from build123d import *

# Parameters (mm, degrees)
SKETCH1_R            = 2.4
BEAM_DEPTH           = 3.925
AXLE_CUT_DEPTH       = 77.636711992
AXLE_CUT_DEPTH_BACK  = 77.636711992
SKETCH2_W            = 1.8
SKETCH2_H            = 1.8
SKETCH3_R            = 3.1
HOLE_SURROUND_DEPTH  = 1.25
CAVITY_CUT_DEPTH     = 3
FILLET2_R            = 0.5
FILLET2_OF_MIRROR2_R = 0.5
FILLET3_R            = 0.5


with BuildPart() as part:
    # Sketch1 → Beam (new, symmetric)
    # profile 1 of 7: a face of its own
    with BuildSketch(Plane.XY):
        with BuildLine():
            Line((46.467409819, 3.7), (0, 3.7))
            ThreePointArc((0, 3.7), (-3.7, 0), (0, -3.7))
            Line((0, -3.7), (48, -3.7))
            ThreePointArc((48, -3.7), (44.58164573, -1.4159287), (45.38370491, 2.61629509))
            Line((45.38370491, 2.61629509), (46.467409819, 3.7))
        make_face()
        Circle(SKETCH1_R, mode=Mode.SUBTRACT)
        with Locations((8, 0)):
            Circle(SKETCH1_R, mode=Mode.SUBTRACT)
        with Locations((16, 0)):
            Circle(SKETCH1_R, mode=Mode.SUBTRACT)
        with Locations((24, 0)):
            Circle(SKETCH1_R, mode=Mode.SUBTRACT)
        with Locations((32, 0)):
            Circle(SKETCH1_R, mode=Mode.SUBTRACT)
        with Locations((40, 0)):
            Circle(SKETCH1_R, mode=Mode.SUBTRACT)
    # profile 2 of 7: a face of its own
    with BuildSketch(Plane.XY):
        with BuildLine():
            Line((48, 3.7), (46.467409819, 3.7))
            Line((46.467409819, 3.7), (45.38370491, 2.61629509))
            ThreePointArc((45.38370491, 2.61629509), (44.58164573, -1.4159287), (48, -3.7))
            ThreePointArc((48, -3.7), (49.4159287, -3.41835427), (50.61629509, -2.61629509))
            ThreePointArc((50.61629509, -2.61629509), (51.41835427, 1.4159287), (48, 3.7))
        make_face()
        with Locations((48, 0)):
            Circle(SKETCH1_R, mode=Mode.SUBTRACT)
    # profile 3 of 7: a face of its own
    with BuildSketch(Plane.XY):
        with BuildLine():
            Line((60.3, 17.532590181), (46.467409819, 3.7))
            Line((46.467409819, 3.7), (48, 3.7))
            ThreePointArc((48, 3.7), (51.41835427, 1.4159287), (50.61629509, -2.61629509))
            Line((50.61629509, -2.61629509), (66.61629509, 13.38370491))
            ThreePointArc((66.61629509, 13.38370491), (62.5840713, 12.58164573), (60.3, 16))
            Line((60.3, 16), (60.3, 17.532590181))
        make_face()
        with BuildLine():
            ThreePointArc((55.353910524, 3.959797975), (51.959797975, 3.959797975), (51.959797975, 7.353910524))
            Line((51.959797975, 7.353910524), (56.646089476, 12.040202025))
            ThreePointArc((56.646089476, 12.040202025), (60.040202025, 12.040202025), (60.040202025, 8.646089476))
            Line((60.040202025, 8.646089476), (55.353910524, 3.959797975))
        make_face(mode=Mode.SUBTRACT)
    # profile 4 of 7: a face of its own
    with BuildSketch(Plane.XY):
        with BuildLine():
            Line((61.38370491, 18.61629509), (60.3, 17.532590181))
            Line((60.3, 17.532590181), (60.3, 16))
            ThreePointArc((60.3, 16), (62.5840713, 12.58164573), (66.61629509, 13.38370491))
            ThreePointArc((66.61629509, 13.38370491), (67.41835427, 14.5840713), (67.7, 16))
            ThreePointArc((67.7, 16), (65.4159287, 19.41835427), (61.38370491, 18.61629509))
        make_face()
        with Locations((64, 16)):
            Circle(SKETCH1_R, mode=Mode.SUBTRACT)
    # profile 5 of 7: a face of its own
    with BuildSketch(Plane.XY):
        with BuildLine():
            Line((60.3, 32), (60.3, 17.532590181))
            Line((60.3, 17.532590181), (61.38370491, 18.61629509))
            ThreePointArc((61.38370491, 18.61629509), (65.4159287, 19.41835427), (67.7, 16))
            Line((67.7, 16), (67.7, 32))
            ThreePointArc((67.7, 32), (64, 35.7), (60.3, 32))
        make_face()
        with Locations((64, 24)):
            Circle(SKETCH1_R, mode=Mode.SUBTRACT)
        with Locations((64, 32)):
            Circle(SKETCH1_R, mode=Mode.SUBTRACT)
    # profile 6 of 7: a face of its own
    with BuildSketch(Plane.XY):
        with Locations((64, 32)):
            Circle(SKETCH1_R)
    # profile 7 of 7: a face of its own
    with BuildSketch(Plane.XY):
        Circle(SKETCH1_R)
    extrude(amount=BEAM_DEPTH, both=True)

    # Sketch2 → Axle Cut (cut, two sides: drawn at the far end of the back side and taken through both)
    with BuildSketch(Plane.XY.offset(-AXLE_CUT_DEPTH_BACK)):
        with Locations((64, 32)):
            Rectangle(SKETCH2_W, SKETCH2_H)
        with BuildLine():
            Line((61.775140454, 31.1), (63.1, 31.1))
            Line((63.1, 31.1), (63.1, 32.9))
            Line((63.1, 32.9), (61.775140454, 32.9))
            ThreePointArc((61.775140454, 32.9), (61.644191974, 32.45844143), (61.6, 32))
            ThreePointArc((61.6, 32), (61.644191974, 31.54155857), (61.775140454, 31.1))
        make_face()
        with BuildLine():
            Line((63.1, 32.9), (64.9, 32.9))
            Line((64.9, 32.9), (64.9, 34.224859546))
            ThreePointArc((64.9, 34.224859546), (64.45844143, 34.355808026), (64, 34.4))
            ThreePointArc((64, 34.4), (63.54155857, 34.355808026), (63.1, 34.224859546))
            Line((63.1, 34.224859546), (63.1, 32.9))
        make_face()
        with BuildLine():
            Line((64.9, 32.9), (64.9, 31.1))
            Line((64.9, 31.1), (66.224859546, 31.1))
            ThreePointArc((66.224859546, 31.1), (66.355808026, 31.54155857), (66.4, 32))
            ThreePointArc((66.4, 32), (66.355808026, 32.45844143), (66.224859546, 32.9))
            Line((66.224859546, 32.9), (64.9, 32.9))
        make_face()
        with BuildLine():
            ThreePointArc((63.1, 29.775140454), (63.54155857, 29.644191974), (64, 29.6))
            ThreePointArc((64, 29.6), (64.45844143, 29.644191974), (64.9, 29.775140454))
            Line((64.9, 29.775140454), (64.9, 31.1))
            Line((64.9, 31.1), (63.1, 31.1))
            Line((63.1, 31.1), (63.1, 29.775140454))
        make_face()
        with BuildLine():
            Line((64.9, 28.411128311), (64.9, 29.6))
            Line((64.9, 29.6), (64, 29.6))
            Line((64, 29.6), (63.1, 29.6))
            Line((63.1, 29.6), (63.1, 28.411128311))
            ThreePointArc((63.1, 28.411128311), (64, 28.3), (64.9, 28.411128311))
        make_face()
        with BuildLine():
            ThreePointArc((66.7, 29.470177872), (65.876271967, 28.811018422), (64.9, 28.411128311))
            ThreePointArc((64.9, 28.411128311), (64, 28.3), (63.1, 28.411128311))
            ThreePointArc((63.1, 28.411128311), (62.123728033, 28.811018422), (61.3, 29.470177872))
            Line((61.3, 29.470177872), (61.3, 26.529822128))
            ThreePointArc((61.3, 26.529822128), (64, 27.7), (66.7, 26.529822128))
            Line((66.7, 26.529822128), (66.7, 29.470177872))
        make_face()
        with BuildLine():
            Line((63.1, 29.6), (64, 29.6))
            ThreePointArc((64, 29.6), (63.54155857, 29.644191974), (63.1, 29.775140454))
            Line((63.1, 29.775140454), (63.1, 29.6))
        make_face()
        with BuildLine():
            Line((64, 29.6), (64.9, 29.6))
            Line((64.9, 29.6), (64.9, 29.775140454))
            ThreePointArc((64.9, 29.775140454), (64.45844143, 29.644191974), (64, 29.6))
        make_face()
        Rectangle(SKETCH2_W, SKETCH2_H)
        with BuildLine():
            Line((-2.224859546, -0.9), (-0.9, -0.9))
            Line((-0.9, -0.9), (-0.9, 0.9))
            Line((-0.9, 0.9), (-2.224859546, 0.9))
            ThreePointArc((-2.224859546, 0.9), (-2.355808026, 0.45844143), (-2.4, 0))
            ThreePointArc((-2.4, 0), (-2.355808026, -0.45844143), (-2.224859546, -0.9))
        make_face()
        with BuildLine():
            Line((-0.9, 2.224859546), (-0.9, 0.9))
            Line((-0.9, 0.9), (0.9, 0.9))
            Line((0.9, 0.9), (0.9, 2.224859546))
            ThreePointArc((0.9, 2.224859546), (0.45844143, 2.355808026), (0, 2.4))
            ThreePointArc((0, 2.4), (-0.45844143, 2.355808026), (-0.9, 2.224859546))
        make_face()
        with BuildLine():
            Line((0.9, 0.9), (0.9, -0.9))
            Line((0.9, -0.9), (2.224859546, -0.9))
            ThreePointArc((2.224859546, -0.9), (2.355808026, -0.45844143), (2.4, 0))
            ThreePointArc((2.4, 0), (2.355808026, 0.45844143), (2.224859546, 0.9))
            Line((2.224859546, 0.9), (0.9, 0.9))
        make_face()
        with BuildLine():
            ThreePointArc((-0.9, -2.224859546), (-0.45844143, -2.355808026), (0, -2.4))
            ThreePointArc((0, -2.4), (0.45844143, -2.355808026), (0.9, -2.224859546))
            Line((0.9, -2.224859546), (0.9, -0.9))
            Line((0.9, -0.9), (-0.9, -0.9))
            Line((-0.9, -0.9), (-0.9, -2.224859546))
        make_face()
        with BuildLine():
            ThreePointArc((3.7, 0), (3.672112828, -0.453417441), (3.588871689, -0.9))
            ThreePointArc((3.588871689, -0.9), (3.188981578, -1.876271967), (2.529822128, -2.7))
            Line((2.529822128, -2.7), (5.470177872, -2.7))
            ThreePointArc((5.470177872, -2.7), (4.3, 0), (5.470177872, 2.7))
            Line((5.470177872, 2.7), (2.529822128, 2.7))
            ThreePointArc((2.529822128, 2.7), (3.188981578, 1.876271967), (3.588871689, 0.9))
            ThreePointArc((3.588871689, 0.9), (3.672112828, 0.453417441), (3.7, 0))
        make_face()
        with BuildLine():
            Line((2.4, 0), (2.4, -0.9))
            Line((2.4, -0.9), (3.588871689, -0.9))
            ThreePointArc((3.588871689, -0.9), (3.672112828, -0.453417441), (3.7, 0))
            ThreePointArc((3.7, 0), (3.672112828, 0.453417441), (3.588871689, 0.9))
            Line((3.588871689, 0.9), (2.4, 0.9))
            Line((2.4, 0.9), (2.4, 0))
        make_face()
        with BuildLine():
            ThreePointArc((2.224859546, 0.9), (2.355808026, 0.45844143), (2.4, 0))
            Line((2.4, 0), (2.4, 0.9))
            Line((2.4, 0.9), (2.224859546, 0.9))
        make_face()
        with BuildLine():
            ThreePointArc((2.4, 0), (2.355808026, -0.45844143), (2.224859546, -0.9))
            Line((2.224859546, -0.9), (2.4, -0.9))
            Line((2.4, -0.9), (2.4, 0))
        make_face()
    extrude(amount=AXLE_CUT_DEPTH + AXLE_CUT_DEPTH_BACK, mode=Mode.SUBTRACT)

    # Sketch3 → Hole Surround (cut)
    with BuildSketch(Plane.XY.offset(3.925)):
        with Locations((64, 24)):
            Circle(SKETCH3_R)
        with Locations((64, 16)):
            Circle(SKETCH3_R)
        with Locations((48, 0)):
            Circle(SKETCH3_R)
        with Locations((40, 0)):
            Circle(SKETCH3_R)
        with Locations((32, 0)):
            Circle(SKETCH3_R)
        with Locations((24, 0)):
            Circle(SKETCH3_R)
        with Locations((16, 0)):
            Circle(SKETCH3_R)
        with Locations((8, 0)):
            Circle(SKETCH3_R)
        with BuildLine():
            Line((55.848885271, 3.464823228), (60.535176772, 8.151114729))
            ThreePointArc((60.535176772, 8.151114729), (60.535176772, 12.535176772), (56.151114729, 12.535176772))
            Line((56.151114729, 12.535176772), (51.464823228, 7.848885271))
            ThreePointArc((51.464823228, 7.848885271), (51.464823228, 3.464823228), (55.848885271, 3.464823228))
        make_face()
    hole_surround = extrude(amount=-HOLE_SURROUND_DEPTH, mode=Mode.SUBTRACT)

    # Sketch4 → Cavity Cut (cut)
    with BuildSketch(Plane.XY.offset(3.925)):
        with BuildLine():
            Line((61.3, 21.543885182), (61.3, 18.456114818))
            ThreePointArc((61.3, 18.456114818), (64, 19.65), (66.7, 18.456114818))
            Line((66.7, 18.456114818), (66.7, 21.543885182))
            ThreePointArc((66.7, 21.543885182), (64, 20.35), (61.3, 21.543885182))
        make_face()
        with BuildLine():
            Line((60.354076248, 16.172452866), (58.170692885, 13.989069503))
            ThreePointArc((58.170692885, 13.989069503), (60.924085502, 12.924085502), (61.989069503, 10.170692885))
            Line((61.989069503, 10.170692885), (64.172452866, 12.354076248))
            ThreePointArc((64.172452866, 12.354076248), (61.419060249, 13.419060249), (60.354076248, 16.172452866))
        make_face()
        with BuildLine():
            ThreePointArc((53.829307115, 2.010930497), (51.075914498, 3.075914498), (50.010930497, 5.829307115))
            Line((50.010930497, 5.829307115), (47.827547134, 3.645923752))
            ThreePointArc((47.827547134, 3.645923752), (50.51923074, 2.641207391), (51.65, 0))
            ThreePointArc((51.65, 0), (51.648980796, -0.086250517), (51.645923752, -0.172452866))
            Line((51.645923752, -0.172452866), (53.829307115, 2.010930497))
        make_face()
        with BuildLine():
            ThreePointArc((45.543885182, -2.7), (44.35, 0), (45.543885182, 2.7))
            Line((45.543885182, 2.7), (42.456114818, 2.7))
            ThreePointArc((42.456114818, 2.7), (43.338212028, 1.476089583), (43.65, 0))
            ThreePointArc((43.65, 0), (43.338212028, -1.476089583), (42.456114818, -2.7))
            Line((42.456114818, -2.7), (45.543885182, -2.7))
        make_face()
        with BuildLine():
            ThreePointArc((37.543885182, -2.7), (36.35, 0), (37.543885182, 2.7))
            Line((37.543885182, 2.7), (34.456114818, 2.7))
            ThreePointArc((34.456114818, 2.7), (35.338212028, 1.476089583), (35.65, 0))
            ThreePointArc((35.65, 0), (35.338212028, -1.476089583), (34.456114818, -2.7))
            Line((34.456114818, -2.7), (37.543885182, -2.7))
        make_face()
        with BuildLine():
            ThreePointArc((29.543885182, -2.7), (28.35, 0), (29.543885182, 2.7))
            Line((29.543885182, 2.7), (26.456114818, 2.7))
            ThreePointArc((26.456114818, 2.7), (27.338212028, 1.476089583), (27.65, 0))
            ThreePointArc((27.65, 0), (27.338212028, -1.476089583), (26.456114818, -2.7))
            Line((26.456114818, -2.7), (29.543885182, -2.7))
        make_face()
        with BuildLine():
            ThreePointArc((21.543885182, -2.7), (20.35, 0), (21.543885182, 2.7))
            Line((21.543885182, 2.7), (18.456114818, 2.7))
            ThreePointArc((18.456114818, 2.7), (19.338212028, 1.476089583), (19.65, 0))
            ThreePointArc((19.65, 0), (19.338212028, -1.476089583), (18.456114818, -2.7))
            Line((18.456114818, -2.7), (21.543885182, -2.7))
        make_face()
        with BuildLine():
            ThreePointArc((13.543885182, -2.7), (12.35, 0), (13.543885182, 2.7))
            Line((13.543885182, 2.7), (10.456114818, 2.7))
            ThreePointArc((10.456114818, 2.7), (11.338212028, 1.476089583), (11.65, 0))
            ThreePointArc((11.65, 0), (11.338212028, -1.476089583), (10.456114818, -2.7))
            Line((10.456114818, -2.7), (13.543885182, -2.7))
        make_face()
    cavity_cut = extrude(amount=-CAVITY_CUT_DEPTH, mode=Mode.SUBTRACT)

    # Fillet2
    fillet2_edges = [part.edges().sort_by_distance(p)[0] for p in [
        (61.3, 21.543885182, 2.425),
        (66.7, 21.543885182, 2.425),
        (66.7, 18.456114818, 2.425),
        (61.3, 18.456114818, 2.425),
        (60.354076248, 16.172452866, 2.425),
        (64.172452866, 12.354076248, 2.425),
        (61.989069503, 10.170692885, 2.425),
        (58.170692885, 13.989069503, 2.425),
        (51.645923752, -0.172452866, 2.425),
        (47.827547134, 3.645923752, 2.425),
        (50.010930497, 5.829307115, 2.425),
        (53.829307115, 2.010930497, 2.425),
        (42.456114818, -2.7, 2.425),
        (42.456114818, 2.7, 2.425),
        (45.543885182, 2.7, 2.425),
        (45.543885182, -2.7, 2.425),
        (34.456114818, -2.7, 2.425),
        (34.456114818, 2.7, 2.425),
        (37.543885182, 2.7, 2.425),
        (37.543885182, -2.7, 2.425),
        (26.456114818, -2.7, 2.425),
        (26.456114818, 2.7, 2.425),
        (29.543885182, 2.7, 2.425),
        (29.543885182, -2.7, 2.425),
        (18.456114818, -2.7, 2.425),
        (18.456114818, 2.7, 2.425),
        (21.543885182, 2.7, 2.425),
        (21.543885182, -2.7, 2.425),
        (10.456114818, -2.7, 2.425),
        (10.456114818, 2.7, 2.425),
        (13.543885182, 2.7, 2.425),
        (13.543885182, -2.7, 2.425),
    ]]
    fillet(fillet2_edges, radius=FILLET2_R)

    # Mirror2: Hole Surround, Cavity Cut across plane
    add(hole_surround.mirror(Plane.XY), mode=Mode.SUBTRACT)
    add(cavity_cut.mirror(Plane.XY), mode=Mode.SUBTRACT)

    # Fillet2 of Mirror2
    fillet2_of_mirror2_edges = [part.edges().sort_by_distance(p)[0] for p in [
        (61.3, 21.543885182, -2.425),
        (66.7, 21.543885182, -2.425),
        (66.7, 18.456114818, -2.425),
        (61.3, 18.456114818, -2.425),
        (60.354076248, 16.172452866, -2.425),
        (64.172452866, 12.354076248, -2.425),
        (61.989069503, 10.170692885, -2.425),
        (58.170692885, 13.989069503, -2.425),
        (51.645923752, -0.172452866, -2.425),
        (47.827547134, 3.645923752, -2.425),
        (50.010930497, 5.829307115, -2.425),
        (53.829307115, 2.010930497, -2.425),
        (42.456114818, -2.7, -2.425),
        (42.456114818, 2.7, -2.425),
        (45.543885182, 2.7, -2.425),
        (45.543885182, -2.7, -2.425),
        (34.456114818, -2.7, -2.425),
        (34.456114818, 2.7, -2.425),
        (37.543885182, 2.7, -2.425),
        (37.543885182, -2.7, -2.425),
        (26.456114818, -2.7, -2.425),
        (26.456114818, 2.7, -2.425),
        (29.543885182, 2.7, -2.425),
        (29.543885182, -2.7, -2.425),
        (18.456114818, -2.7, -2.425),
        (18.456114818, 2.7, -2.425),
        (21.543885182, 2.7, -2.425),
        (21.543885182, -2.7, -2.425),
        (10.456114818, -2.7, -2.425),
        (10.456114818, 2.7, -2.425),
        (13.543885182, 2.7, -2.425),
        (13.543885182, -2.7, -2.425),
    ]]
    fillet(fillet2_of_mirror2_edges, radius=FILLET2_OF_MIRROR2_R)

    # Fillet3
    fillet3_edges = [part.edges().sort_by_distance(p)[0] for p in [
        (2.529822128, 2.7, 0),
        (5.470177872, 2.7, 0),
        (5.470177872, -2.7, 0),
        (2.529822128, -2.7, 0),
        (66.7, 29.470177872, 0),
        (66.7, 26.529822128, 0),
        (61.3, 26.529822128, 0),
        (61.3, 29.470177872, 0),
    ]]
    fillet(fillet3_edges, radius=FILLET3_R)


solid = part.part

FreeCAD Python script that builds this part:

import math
import FreeCAD as App
import Part
import Sketcher
Q = App.Units.Quantity


def edges_at(feature, points):
    """Names of the edges that pass closest to the given points."""
    edges = feature.Shape.Edges
    near = lambda p: min(range(len(edges)), key=lambda i: edges[i].distToShape(Part.Vertex(*p))[0])
    return sorted({f"Edge{near(p) + 1}" for p in points})

doc = App.newDocument("Part")
body = doc.addObject("PartDesign::Body", "Body")

sketch1 = body.newObject("Sketcher::SketchObject", "Sketch")
sketch1.AttachmentSupport = (doc.getObject("XY_Plane"), [""])
sketch1.MapMode = "FlatFace"
sketch1.addGeometry(Part.LineSegment(App.Vector(46.5, 3.7, 0), App.Vector(0, 3.7, 0)), False)
sketch1.addGeometry(Part.ArcOfCircle(Part.Circle(App.Vector(0, 0, 0), App.Vector(0, 0, 1), 3.7), math.radians(90), math.radians(270)), False)
sketch1.addGeometry(Part.LineSegment(App.Vector(0, -3.7, 0), App.Vector(48, -3.7, 0)), False)
sketch1.addGeometry(Part.ArcOfCircle(Part.Circle(App.Vector(48, 0, 0), App.Vector(0, 0, 1), 3.7), math.radians(-90), math.radians(-45)), False)
sketch1.addGeometry(Part.LineSegment(App.Vector(50.6, -2.6, 0), App.Vector(66.6, 13.4, 0)), False)
sketch1.addGeometry(Part.ArcOfCircle(Part.Circle(App.Vector(64, 16, 0), App.Vector(0, 0, 1), 3.7), math.radians(-45), math.radians(0)), False)
sketch1.addGeometry(Part.LineSegment(App.Vector(67.7, 16, 0), App.Vector(67.7, 32, 0)), False)
sketch1.addGeometry(Part.ArcOfCircle(Part.Circle(App.Vector(64, 32, 0), App.Vector(0, 0, 1), 3.7), math.radians(0), math.radians(180)), False)
sketch1.addGeometry(Part.LineSegment(App.Vector(60.3, 32, 0), App.Vector(60.3, 17.5, 0)), False)
sketch1.addGeometry(Part.LineSegment(App.Vector(60.3, 17.5, 0), App.Vector(46.5, 3.7, 0)), False)
sketch1.addGeometry(Part.Circle(App.Vector(8, 0, 0), App.Vector(0, 0, 1), 2.4), False)
sketch1.addGeometry(Part.Circle(App.Vector(16, 0, 0), App.Vector(0, 0, 1), 2.4), False)
sketch1.addGeometry(Part.Circle(App.Vector(24, 0, 0), App.Vector(0, 0, 1), 2.4), False)
sketch1.addGeometry(Part.Circle(App.Vector(32, 0, 0), App.Vector(0, 0, 1), 2.4), False)
sketch1.addGeometry(Part.Circle(App.Vector(40, 0, 0), App.Vector(0, 0, 1), 2.4), False)
sketch1.addGeometry(Part.Circle(App.Vector(48, 0, 0), App.Vector(0, 0, 1), 2.4), False)
sketch1.addGeometry(Part.ArcOfCircle(Part.Circle(App.Vector(53.7, 5.7, 0), App.Vector(0, 0, 1), 2.4), math.radians(135), math.radians(315)), False)
sketch1.addGeometry(Part.LineSegment(App.Vector(52, 7.4, 0), App.Vector(56.6, 12, 0)), False)
sketch1.addGeometry(Part.ArcOfCircle(Part.Circle(App.Vector(58.3, 10.3, 0), App.Vector(0, 0, 1), 2.4), math.radians(-45), math.radians(135)), False)
sketch1.addGeometry(Part.LineSegment(App.Vector(60, 8.6, 0), App.Vector(55.4, 4, 0)), False)
sketch1.addGeometry(Part.Circle(App.Vector(64, 16, 0), App.Vector(0, 0, 1), 2.4), False)
sketch1.addGeometry(Part.Circle(App.Vector(64, 24, 0), App.Vector(0, 0, 1), 2.4), False)
sketch1.addConstraint(Sketcher.Constraint("Tangent", 0, 2, 1, 1))
sketch1.addConstraint(Sketcher.Constraint("Tangent", 1, 2, 2, 1))
sketch1.addConstraint(Sketcher.Constraint("Tangent", 2, 2, 3, 1))
sketch1.addConstraint(Sketcher.Constraint("Tangent", 3, 2, 4, 1))
sketch1.addConstraint(Sketcher.Constraint("Tangent", 4, 2, 5, 1))
sketch1.addConstraint(Sketcher.Constraint("Tangent", 5, 2, 6, 1))
sketch1.addConstraint(Sketcher.Constraint("Tangent", 6, 2, 7, 1))
sketch1.addConstraint(Sketcher.Constraint("Tangent", 7, 2, 8, 1))
sketch1.addConstraint(Sketcher.Constraint("Coincident", 8, 2, 9, 1))
sketch1.addConstraint(Sketcher.Constraint("Coincident", 9, 2, 0, 1))
sketch1.addConstraint(Sketcher.Constraint("Tangent", 16, 1, 17, 1))
sketch1.addConstraint(Sketcher.Constraint("Tangent", 17, 2, 18, 2))
sketch1.addConstraint(Sketcher.Constraint("Tangent", 18, 1, 19, 1))
sketch1.addConstraint(Sketcher.Constraint("Tangent", 19, 2, 16, 2))
sketch1.addConstraint(Sketcher.Constraint("Horizontal", 0))
sketch1.addConstraint(Sketcher.Constraint("Horizontal", 2))
sketch1.addConstraint(Sketcher.Constraint("Vertical", 6))
sketch1.addConstraint(Sketcher.Constraint("Vertical", 8))
sketch1.addConstraint(Sketcher.Constraint("Coincident", 1, 3, -1, 1))
sketch1.addConstraint(Sketcher.Constraint("Coincident", 15, 3, 3, 3))
sketch1.addConstraint(Sketcher.Constraint("Coincident", 20, 3, 5, 3))
sketch1.addConstraint(Sketcher.Constraint("Equal", 1, 3))
sketch1.addConstraint(Sketcher.Constraint("Equal", 3, 5))
sketch1.addConstraint(Sketcher.Constraint("Equal", 5, 7))
sketch1.addConstraint(Sketcher.Constraint("Equal", 10, 11))
sketch1.addConstraint(Sketcher.Constraint("Equal", 11, 12))
sketch1.addConstraint(Sketcher.Constraint("Equal", 12, 13))
sketch1.addConstraint(Sketcher.Constraint("Equal", 13, 14))
sketch1.addConstraint(Sketcher.Constraint("Equal", 14, 15))
sketch1.addConstraint(Sketcher.Constraint("Equal", 15, 16))
sketch1.addConstraint(Sketcher.Constraint("Equal", 16, 18))
sketch1.addConstraint(Sketcher.Constraint("Equal", 18, 20))
sketch1.addConstraint(Sketcher.Constraint("Equal", 20, 21))
sketch1.addConstraint(Sketcher.Constraint("PointOnObject", 10, 3, -1))
sketch1.addConstraint(Sketcher.Constraint("PointOnObject", 11, 3, -1))
sketch1.addConstraint(Sketcher.Constraint("PointOnObject", 12, 3, -1))
sketch1.addConstraint(Sketcher.Constraint("PointOnObject", 13, 3, -1))
sketch1.addConstraint(Sketcher.Constraint("PointOnObject", 14, 3, -1))
sketch1.addConstraint(Sketcher.Constraint("Parallel", 4, 9))
sketch1.addConstraint(Sketcher.Constraint("Parallel", 9, 17))
sketch1.addConstraint(Sketcher.Constraint("Vertical", 20, 3, 21, 3))
sketch1.addConstraint(Sketcher.Constraint("Diameter", 10, Q("4.8 mm")))
sketch1.addConstraint(Sketcher.Constraint("Radius", 1, Q("3.7 mm")))
sketch1.addConstraint(Sketcher.Constraint("DistanceX", 2, 1, 2, 2, Q("48 mm")))
sketch1.addConstraint(Sketcher.Constraint("DistanceY", 6, 1, 6, 2, Q("16 mm")))
sketch1.addConstraint(Sketcher.Constraint("Angle", 4, Q("45 deg")))
sketch1.addConstraint(Sketcher.Constraint("DistanceX", -1, 1, 5, 3, Q("64 mm")))
sketch1.addConstraint(Sketcher.Constraint("DistanceX", -1, 1, 10, 3, Q("8 mm")))
sketch1.addConstraint(Sketcher.Constraint("DistanceX", -1, 1, 11, 3, Q("16 mm")))
sketch1.addConstraint(Sketcher.Constraint("DistanceX", -1, 1, 12, 3, Q("24 mm")))
sketch1.addConstraint(Sketcher.Constraint("DistanceX", -1, 1, 13, 3, Q("32 mm")))
sketch1.addConstraint(Sketcher.Constraint("DistanceX", -1, 1, 14, 3, Q("40 mm")))
sketch1.addConstraint(Sketcher.Constraint("DistanceY", -1, 1, 21, 3, Q("24 mm")))
sketch1.addConstraint(Sketcher.Constraint("DistanceX", 0, 2, 0, 1, Q("46.46741 mm")))
sketch1.addConstraint(Sketcher.Constraint("DistanceY", -1, 1, 16, 1, Q("7.353911 mm")))
sketch1.addConstraint(Sketcher.Constraint("DistanceX", -1, 1, 17, 2, Q("56.646089 mm")))
sketch1.addConstraint(Sketcher.Constraint("DistanceY", -1, 1, 18, 1, Q("8.646089 mm")))
pad1 = body.newObject("PartDesign::Pad", "Pad")
pad1.Profile = sketch1
pad1.Length = 7.85
pad1.Midplane = True

sketch2 = body.newObject("Sketcher::SketchObject", "Sketch001")
sketch2.AttachmentSupport = (doc.getObject("XY_Plane"), [""])
sketch2.MapMode = "FlatFace"
sketch2.addGeometry(Part.LineSegment(App.Vector(64.9, 32.9, 0), App.Vector(64.9, 34.2, 0)), False)
sketch2.addGeometry(Part.ArcOfCircle(Part.Circle(App.Vector(64, 32, 0), App.Vector(0, 0, 1), 2.4), math.radians(68), math.radians(90)), False)
sketch2.addGeometry(Part.ArcOfCircle(Part.Circle(App.Vector(64, 32, 0), App.Vector(0, 0, 1), 2.4), math.radians(90), math.radians(112)), False)
sketch2.addGeometry(Part.LineSegment(App.Vector(63.1, 34.2, 0), App.Vector(63.1, 32.9, 0)), False)
sketch2.addGeometry(Part.LineSegment(App.Vector(63.1, 32.9, 0), App.Vector(61.8, 32.9, 0)), False)
sketch2.addGeometry(Part.ArcOfCircle(Part.Circle(App.Vector(64, 32, 0), App.Vector(0, 0, 1), 2.4), math.radians(158), math.radians(180)), False)
sketch2.addGeometry(Part.ArcOfCircle(Part.Circle(App.Vector(64, 32, 0), App.Vector(0, 0, 1), 2.4), math.radians(180), math.radians(202)), False)
sketch2.addGeometry(Part.LineSegment(App.Vector(61.8, 31.1, 0), App.Vector(63.1, 31.1, 0)), False)
sketch2.addGeometry(Part.LineSegment(App.Vector(63.1, 31.1, 0), App.Vector(63.1, 28.4, 0)), False)
sketch2.addGeometry(Part.ArcOfCircle(Part.Circle(App.Vector(64, 32, 0), App.Vector(0, 0, 1), 3.7), math.radians(-137), math.radians(-104)), False)
sketch2.addGeometry(Part.LineSegment(App.Vector(61.3, 29.5, 0), App.Vector(61.3, 26.5, 0)), False)
sketch2.addGeometry(Part.ArcOfCircle(Part.Circle(App.Vector(64, 24, 0), App.Vector(0, 0, 1), 3.7), math.radians(43), math.radians(137)), False)
sketch2.addGeometry(Part.LineSegment(App.Vector(66.7, 26.5, 0), App.Vector(66.7, 29.5, 0)), False)
sketch2.addGeometry(Part.ArcOfCircle(Part.Circle(App.Vector(64, 32, 0), App.Vector(0, 0, 1), 3.7), math.radians(-76), math.radians(-43)), False)
sketch2.addGeometry(Part.LineSegment(App.Vector(64.9, 28.4, 0), App.Vector(64.9, 31.1, 0)), False)
sketch2.addGeometry(Part.LineSegment(App.Vector(64.9, 31.1, 0), App.Vector(66.2, 31.1, 0)), False)
sketch2.addGeometry(Part.ArcOfCircle(Part.Circle(App.Vector(64, 32, 0), App.Vector(0, 0, 1), 2.4), math.radians(-22), math.radians(0)), False)
sketch2.addGeometry(Part.ArcOfCircle(Part.Circle(App.Vector(64, 32, 0), App.Vector(0, 0, 1), 2.4), math.radians(0), math.radians(22)), False)
sketch2.addGeometry(Part.LineSegment(App.Vector(66.2, 32.9, 0), App.Vector(64.9, 32.9, 0)), False)
sketch2.addGeometry(Part.LineSegment(App.Vector(0.9, 0.9, 0), App.Vector(0.9, 2.2, 0)), False)
sketch2.addGeometry(Part.ArcOfCircle(Part.Circle(App.Vector(0, 0, 0), App.Vector(0, 0, 1), 2.4), math.radians(68), math.radians(90)), False)
sketch2.addGeometry(Part.ArcOfCircle(Part.Circle(App.Vector(0, 0, 0), App.Vector(0, 0, 1), 2.4), math.radians(90), math.radians(112)), False)
sketch2.addGeometry(Part.LineSegment(App.Vector(-0.9, 2.2, 0), App.Vector(-0.9, 0.9, 0)), False)
sketch2.addGeometry(Part.LineSegment(App.Vector(-0.9, 0.9, 0), App.Vector(-2.2, 0.9, 0)), False)
sketch2.addGeometry(Part.ArcOfCircle(Part.Circle(App.Vector(0, 0, 0), App.Vector(0, 0, 1), 2.4), math.radians(158), math.radians(180)), False)
sketch2.addGeometry(Part.ArcOfCircle(Part.Circle(App.Vector(0, 0, 0), App.Vector(0, 0, 1), 2.4), math.radians(180), math.radians(202)), False)
sketch2.addGeometry(Part.LineSegment(App.Vector(-2.2, -0.9, 0), App.Vector(-0.9, -0.9, 0)), False)
sketch2.addGeometry(Part.LineSegment(App.Vector(-0.9, -0.9, 0), App.Vector(-0.9, -2.2, 0)), False)
sketch2.addGeometry(Part.ArcOfCircle(Part.Circle(App.Vector(0, 0, 0), App.Vector(0, 0, 1), 2.4), math.radians(-112), math.radians(-90)), False)
sketch2.addGeometry(Part.ArcOfCircle(Part.Circle(App.Vector(0, 0, 0), App.Vector(0, 0, 1), 2.4), math.radians(-90), math.radians(-68)), False)
sketch2.addGeometry(Part.LineSegment(App.Vector(0.9, -2.2, 0), App.Vector(0.9, -0.9, 0)), False)
sketch2.addGeometry(Part.LineSegment(App.Vector(0.9, -0.9, 0), App.Vector(3.6, -0.9, 0)), False)
sketch2.addGeometry(Part.ArcOfCircle(Part.Circle(App.Vector(0, 0, 0), App.Vector(0, 0, 1), 3.7), math.radians(-47), math.radians(-14)), False)
sketch2.addGeometry(Part.LineSegment(App.Vector(2.5, -2.7, 0), App.Vector(5.5, -2.7, 0)), False)
sketch2.addGeometry(Part.ArcOfCircle(Part.Circle(App.Vector(8, 0, 0), App.Vector(0, 0, 1), 3.7), math.radians(133), math.radians(227)), False)
sketch2.addGeometry(Part.LineSegment(App.Vector(5.5, 2.7, 0), App.Vector(2.5, 2.7, 0)), False)
sketch2.addGeometry(Part.ArcOfCircle(Part.Circle(App.Vector(0, 0, 0), App.Vector(0, 0, 1), 3.7), math.radians(14), math.radians(47)), False)
sketch2.addGeometry(Part.LineSegment(App.Vector(3.6, 0.9, 0), App.Vector(0.9, 0.9, 0)), False)
sketch2.addConstraint(Sketcher.Constraint("Coincident", 0, 2, 1, 1))
sketch2.addConstraint(Sketcher.Constraint("Tangent", 1, 2, 2, 1))
sketch2.addConstraint(Sketcher.Constraint("Coincident", 2, 2, 3, 1))
sketch2.addConstraint(Sketcher.Constraint("Coincident", 3, 2, 4, 1))
sketch2.addConstraint(Sketcher.Constraint("Coincident", 4, 2, 5, 1))
sketch2.addConstraint(Sketcher.Constraint("Tangent", 5, 2, 6, 1))
sketch2.addConstraint(Sketcher.Constraint("Coincident", 6, 2, 7, 1))
sketch2.addConstraint(Sketcher.Constraint("Coincident", 7, 2, 8, 1))
sketch2.addConstraint(Sketcher.Constraint("Coincident", 8, 2, 9, 2))
sketch2.addConstraint(Sketcher.Constraint("Coincident", 9, 1, 10, 1))
sketch2.addConstraint(Sketcher.Constraint("Coincident", 10, 2, 11, 2))
sketch2.addConstraint(Sketcher.Constraint("Coincident", 11, 1, 12, 1))
sketch2.addConstraint(Sketcher.Constraint("Coincident", 12, 2, 13, 2))
sketch2.addConstraint(Sketcher.Constraint("Coincident", 13, 1, 14, 1))
sketch2.addConstraint(Sketcher.Constraint("Coincident", 14, 2, 15, 1))
sketch2.addConstraint(Sketcher.Constraint("Coincident", 15, 2, 16, 1))
sketch2.addConstraint(Sketcher.Constraint("Tangent", 16, 2, 17, 1))
sketch2.addConstraint(Sketcher.Constraint("Coincident", 17, 2, 18, 1))
sketch2.addConstraint(Sketcher.Constraint("Coincident", 18, 2, 0, 1))
sketch2.addConstraint(Sketcher.Constraint("Coincident", 19, 2, 20, 1))
sketch2.addConstraint(Sketcher.Constraint("Tangent", 20, 2, 21, 1))
sketch2.addConstraint(Sketcher.Constraint("Coincident", 21, 2, 22, 1))
sketch2.addConstraint(Sketcher.Constraint("Coincident", 22, 2, 23, 1))
sketch2.addConstraint(Sketcher.Constraint("Coincident", 23, 2, 24, 1))
sketch2.addConstraint(Sketcher.Constraint("Tangent", 24, 2, 25, 1))
sketch2.addConstraint(Sketcher.Constraint("Coincident", 25, 2, 26, 1))
sketch2.addConstraint(Sketcher.Constraint("Coincident", 26, 2, 27, 1))
sketch2.addConstraint(Sketcher.Constraint("Coincident", 27, 2, 28, 1))
sketch2.addConstraint(Sketcher.Constraint("Tangent", 28, 2, 29, 1))
sketch2.addConstraint(Sketcher.Constraint("Coincident", 29, 2, 30, 1))
sketch2.addConstraint(Sketcher.Constraint("Coincident", 30, 2, 31, 1))
sketch2.addConstraint(Sketcher.Constraint("Coincident", 31, 2, 32, 2))
sketch2.addConstraint(Sketcher.Constraint("Coincident", 32, 1, 33, 1))
sketch2.addConstraint(Sketcher.Constraint("Coincident", 33, 2, 34, 2))
sketch2.addConstraint(Sketcher.Constraint("Coincident", 34, 1, 35, 1))
sketch2.addConstraint(Sketcher.Constraint("Coincident", 35, 2, 36, 2))
sketch2.addConstraint(Sketcher.Constraint("Coincident", 36, 1, 37, 1))
sketch2.addConstraint(Sketcher.Constraint("Coincident", 37, 2, 19, 1))
sketch2.addConstraint(Sketcher.Constraint("Vertical", 0))
sketch2.addConstraint(Sketcher.Constraint("Vertical", 3))
sketch2.addConstraint(Sketcher.Constraint("Horizontal", 4))
sketch2.addConstraint(Sketcher.Constraint("Horizontal", 7))
sketch2.addConstraint(Sketcher.Constraint("Vertical", 8))
sketch2.addConstraint(Sketcher.Constraint("Vertical", 10))
sketch2.addConstraint(Sketcher.Constraint("Vertical", 12))
sketch2.addConstraint(Sketcher.Constraint("Vertical", 14))
sketch2.addConstraint(Sketcher.Constraint("Horizontal", 15))
sketch2.addConstraint(Sketcher.Constraint("Horizontal", 18))
sketch2.addConstraint(Sketcher.Constraint("Vertical", 19))
sketch2.addConstraint(Sketcher.Constraint("Vertical", 22))
sketch2.addConstraint(Sketcher.Constraint("Horizontal", 23))
sketch2.addConstraint(Sketcher.Constraint("Horizontal", 26))
sketch2.addConstraint(Sketcher.Constraint("Vertical", 27))
sketch2.addConstraint(Sketcher.Constraint("Vertical", 30))
sketch2.addConstraint(Sketcher.Constraint("Horizontal", 31))
sketch2.addConstraint(Sketcher.Constraint("Horizontal", 33))
sketch2.addConstraint(Sketcher.Constraint("Horizontal", 35))
sketch2.addConstraint(Sketcher.Constraint("Horizontal", 37))
sketch2.addConstraint(Sketcher.Constraint("Coincident", 20, 3, -1, 1))
sketch2.addConstraint(Sketcher.Constraint("Coincident", 24, 3, -1, 1))
sketch2.addConstraint(Sketcher.Constraint("Coincident", 28, 3, -1, 1))
sketch2.addConstraint(Sketcher.Constraint("Coincident", 32, 3, -1, 1))
sketch2.addConstraint(Sketcher.Constraint("Coincident", 36, 3, -1, 1))
sketch2.addConstraint(Sketcher.Constraint("Coincident", 5, 3, 1, 3))
sketch2.addConstraint(Sketcher.Constraint("Coincident", 9, 3, 1, 3))
sketch2.addConstraint(Sketcher.Constraint("Coincident", 13, 3, 1, 3))
sketch2.addConstraint(Sketcher.Constraint("Coincident", 16, 3, 1, 3))
sketch2.addConstraint(Sketcher.Constraint("Equal", 1, 2))
sketch2.addConstraint(Sketcher.Constraint("Equal", 2, 5))
sketch2.addConstraint(Sketcher.Constraint("Equal", 5, 6))
sketch2.addConstraint(Sketcher.Constraint("Equal", 9, 11))
sketch2.addConstraint(Sketcher.Constraint("Equal", 11, 13))
sketch2.addConstraint(Sketcher.Constraint("Equal", 6, 16))
sketch2.addConstraint(Sketcher.Constraint("Equal", 16, 17))
sketch2.addConstraint(Sketcher.Constraint("Equal", 17, 20))
sketch2.addConstraint(Sketcher.Constraint("Equal", 20, 21))
sketch2.addConstraint(Sketcher.Constraint("Equal", 21, 24))
sketch2.addConstraint(Sketcher.Constraint("Equal", 24, 25))
sketch2.addConstraint(Sketcher.Constraint("Equal", 25, 28))
sketch2.addConstraint(Sketcher.Constraint("Equal", 28, 29))
sketch2.addConstraint(Sketcher.Constraint("Equal", 13, 32))
sketch2.addConstraint(Sketcher.Constraint("Equal", 32, 34))
sketch2.addConstraint(Sketcher.Constraint("Equal", 34, 36))
sketch2.addConstraint(Sketcher.Constraint("Symmetric", 22, 2, 30, 2, -1, 1))
sketch2.addConstraint(Sketcher.Constraint("Symmetric", 26, 2, 37, 2, -1, 1))
sketch2.addConstraint(Sketcher.Constraint("Symmetric", 26, 2, 30, 2, -2))
sketch2.addConstraint(Sketcher.Constraint("Symmetric", 33, 2, 34, 1, -1))
sketch2.addConstraint(Sketcher.Constraint("PointOnObject", 20, 2, -2))
sketch2.addConstraint(Sketcher.Constraint("PointOnObject", 24, 2, -1))
sketch2.addConstraint(Sketcher.Constraint("PointOnObject", 28, 2, -2))
sketch2.addConstraint(Sketcher.Constraint("Horizontal", 0, 2, 2, 2))
sketch2.addConstraint(Sketcher.Constraint("Horizontal", 17, 3, 5, 2))
sketch2.addConstraint(Sketcher.Constraint("Horizontal", 10, 2, 11, 1))
sketch2.addConstraint(Sketcher.Constraint("Horizontal", 9, 1, 12, 2))
sketch2.addConstraint(Sketcher.Constraint("Horizontal", 8, 2, 13, 1))
sketch2.addConstraint(Sketcher.Constraint("Horizontal", 7, 2, 14, 2))
sketch2.addConstraint(Sketcher.Constraint("Horizontal", 5, 2, 16, 2))
sketch2.addConstraint(Sketcher.Constraint("Horizontal", 4, 2, 17, 2))
sketch2.addConstraint(Sketcher.Constraint("Vertical", 17, 3, 1, 2))
sketch2.addConstraint(Sketcher.Constraint("Vertical", 4, 2, 6, 2))
sketch2.addConstraint(Sketcher.Constraint("Vertical", 3, 2, 7, 2))
sketch2.addConstraint(Sketcher.Constraint("Equal", 18, 23))
sketch2.addConstraint(Sketcher.Constraint("Equal", 26, 0))
sketch2.addConstraint(Sketcher.Constraint("Equal", 37, 8))
sketch2.addConstraint(Sketcher.Constraint("Equal", 35, 10))
sketch2.addConstraint(Sketcher.Constraint("Radius", 1, Q("2.4 mm")))
sketch2.addConstraint(Sketcher.Constraint("Radius", 9, Q("3.7 mm")))
sketch2.addConstraint(Sketcher.Constraint("DistanceX", -1, 1, 1, 3, Q("64 mm")))
sketch2.addConstraint(Sketcher.Constraint("DistanceY", -1, 1, 1, 3, Q("32 mm")))
sketch2.addConstraint(Sketcher.Constraint("DistanceY", -1, 1, 11, 3, Q("24 mm")))
sketch2.addConstraint(Sketcher.Constraint("DistanceX", -1, 1, 34, 3, Q("8 mm")))
sketch2.addConstraint(Sketcher.Constraint("DistanceX", -1, 1, 0, 2, Q("64.9 mm")))
sketch2.addConstraint(Sketcher.Constraint("DistanceX", -1, 1, 9, 1, Q("61.3 mm")))
pocket1 = body.newObject("PartDesign::Pocket", "Pocket")
pocket1.Profile = sketch2
pocket1.Type = "ThroughAll"
pocket1.Midplane = True

sketch3 = body.newObject("Sketcher::SketchObject", "Sketch002")
sketch3.AttachmentSupport = (doc.getObject("XY_Plane"), [""])
sketch3.MapMode = "FlatFace"
sketch3.AttachmentOffset = App.Placement(App.Vector(0, 0, 3.925), App.Rotation())
sketch3.addGeometry(Part.Circle(App.Vector(64, 24, 0), App.Vector(0, 0, 1), 3.1), False)
sketch3.addGeometry(Part.Circle(App.Vector(64, 16, 0), App.Vector(0, 0, 1), 3.1), False)
sketch3.addGeometry(Part.Circle(App.Vector(48, 0, 0), App.Vector(0, 0, 1), 3.1), False)
sketch3.addGeometry(Part.Circle(App.Vector(40, 0, 0), App.Vector(0, 0, 1), 3.1), False)
sketch3.addGeometry(Part.Circle(App.Vector(32, 0, 0), App.Vector(0, 0, 1), 3.1), False)
sketch3.addGeometry(Part.Circle(App.Vector(24, 0, 0), App.Vector(0, 0, 1), 3.1), False)
sketch3.addGeometry(Part.Circle(App.Vector(16, 0, 0), App.Vector(0, 0, 1), 3.1), False)
sketch3.addGeometry(Part.Circle(App.Vector(8, 0, 0), App.Vector(0, 0, 1), 3.1), False)
sketch3.addGeometry(Part.LineSegment(App.Vector(55.8, 3.5, 0), App.Vector(60.5, 8.2, 0)), False)
sketch3.addGeometry(Part.ArcOfCircle(Part.Circle(App.Vector(58.3, 10.3, 0), App.Vector(0, 0, 1), 3.1), math.radians(-45), math.radians(135)), False)
sketch3.addGeometry(Part.LineSegment(App.Vector(56.2, 12.5, 0), App.Vector(51.5, 7.8, 0)), False)
sketch3.addGeometry(Part.ArcOfCircle(Part.Circle(App.Vector(53.7, 5.7, 0), App.Vector(0, 0, 1), 3.1), math.radians(135), math.radians(315)), False)
sketch3.addConstraint(Sketcher.Constraint("Tangent", 8, 2, 9, 1))
sketch3.addConstraint(Sketcher.Constraint("Tangent", 9, 2, 10, 1))
sketch3.addConstraint(Sketcher.Constraint("Tangent", 10, 2, 11, 1))
sketch3.addConstraint(Sketcher.Constraint("Tangent", 11, 2, 8, 1))
sketch3.addConstraint(Sketcher.Constraint("Equal", 0, 1))
sketch3.addConstraint(Sketcher.Constraint("Equal", 1, 2))
sketch3.addConstraint(Sketcher.Constraint("Equal", 2, 3))
sketch3.addConstraint(Sketcher.Constraint("Equal", 3, 4))
sketch3.addConstraint(Sketcher.Constraint("Equal", 4, 5))
sketch3.addConstraint(Sketcher.Constraint("Equal", 5, 6))
sketch3.addConstraint(Sketcher.Constraint("Equal", 6, 7))
sketch3.addConstraint(Sketcher.Constraint("Equal", 7, 9))
sketch3.addConstraint(Sketcher.Constraint("Equal", 9, 11))
sketch3.addConstraint(Sketcher.Constraint("PointOnObject", 2, 3, -1))
sketch3.addConstraint(Sketcher.Constraint("PointOnObject", 3, 3, -1))
sketch3.addConstraint(Sketcher.Constraint("PointOnObject", 4, 3, -1))
sketch3.addConstraint(Sketcher.Constraint("PointOnObject", 5, 3, -1))
sketch3.addConstraint(Sketcher.Constraint("PointOnObject", 6, 3, -1))
sketch3.addConstraint(Sketcher.Constraint("PointOnObject", 7, 3, -1))
sketch3.addConstraint(Sketcher.Constraint("Vertical", 0, 3, 1, 3))
sketch3.addConstraint(Sketcher.Constraint("Diameter", 0, Q("6.2 mm")))
sketch3.addConstraint(Sketcher.Constraint("Angle", 8, Q("45 deg")))
sketch3.addConstraint(Sketcher.Constraint("DistanceX", -1, 1, 0, 3, Q("64 mm")))
sketch3.addConstraint(Sketcher.Constraint("DistanceY", -1, 1, 0, 3, Q("24 mm")))
sketch3.addConstraint(Sketcher.Constraint("DistanceY", -1, 1, 1, 3, Q("16 mm")))
sketch3.addConstraint(Sketcher.Constraint("DistanceX", -1, 1, 2, 3, Q("48 mm")))
sketch3.addConstraint(Sketcher.Constraint("DistanceX", -1, 1, 3, 3, Q("40 mm")))
sketch3.addConstraint(Sketcher.Constraint("DistanceX", -1, 1, 4, 3, Q("32 mm")))
sketch3.addConstraint(Sketcher.Constraint("DistanceX", -1, 1, 5, 3, Q("24 mm")))
sketch3.addConstraint(Sketcher.Constraint("DistanceX", -1, 1, 6, 3, Q("16 mm")))
sketch3.addConstraint(Sketcher.Constraint("DistanceX", -1, 1, 7, 3, Q("8 mm")))
sketch3.addConstraint(Sketcher.Constraint("DistanceX", 11, 3, 9, 3, Q("4.686291 mm")))
sketch3.addConstraint(Sketcher.Constraint("DistanceX", -1, 1, 9, 3, Q("58.343146 mm")))
sketch3.addConstraint(Sketcher.Constraint("DistanceY", -1, 1, 9, 3, Q("10.343146 mm")))
pocket2 = body.newObject("PartDesign::Pocket", "Pocket001")
pocket2.Profile = sketch3
pocket2.Length = 1.25

sketch4 = body.newObject("Sketcher::SketchObject", "Sketch003")
sketch4.AttachmentSupport = (doc.getObject("XY_Plane"), [""])
sketch4.MapMode = "FlatFace"
sketch4.AttachmentOffset = App.Placement(App.Vector(0, 0, 3.925), App.Rotation())
sketch4.addGeometry(Part.LineSegment(App.Vector(61.3, 21.54, 0), App.Vector(61.3, 18.46, 0)), False)
sketch4.addGeometry(Part.ArcOfCircle(Part.Circle(App.Vector(64, 16, 0), App.Vector(0, 0, 1), 3.65), math.radians(42), math.radians(138)), False)
sketch4.addGeometry(Part.LineSegment(App.Vector(66.7, 18.46, 0), App.Vector(66.7, 21.54, 0)), False)
sketch4.addGeometry(Part.ArcOfCircle(Part.Circle(App.Vector(64, 24, 0), App.Vector(0, 0, 1), 3.65), math.radians(-138), math.radians(-42)), False)
sketch4.addGeometry(Part.LineSegment(App.Vector(60.35, 16.17, 0), App.Vector(58.17, 13.99, 0)), False)
sketch4.addGeometry(Part.ArcOfCircle(Part.Circle(App.Vector(58.34, 10.34, 0), App.Vector(0, 0, 1), 3.65), math.radians(-3), math.radians(93)), False)
sketch4.addGeometry(Part.LineSegment(App.Vector(61.99, 10.17, 0), App.Vector(64.17, 12.35, 0)), False)
sketch4.addGeometry(Part.ArcOfCircle(Part.Circle(App.Vector(64, 16, 0), App.Vector(0, 0, 1), 3.65), math.radians(177), math.radians(273)), False)
sketch4.addGeometry(Part.ArcOfCircle(Part.Circle(App.Vector(53.66, 5.66, 0), App.Vector(0, 0, 1), 3.65), math.radians(177), math.radians(273)), False)
sketch4.addGeometry(Part.LineSegment(App.Vector(50.01, 5.83, 0), App.Vector(47.83, 3.65, 0)), False)
sketch4.addGeometry(Part.ArcOfCircle(Part.Circle(App.Vector(48, 0, 0), App.Vector(0, 0, 1), 3.65), math.radians(0), math.radians(93)), False)
sketch4.addGeometry(Part.ArcOfCircle(Part.Circle(App.Vector(48, 0, 0), App.Vector(0, 0, 1), 3.65), math.radians(-2.71), math.radians(0)), False)
sketch4.addGeometry(Part.LineSegment(App.Vector(51.65, -0.17, 0), App.Vector(53.83, 2.01, 0)), False)
sketch4.addGeometry(Part.ArcOfCircle(Part.Circle(App.Vector(48, 0, 0), App.Vector(0, 0, 1), 3.65), math.radians(132), math.radians(228)), False)
sketch4.addGeometry(Part.LineSegment(App.Vector(45.54, 2.7, 0), App.Vector(42.46, 2.7, 0)), False)
sketch4.addGeometry(Part.ArcOfCircle(Part.Circle(App.Vector(40, 0, 0), App.Vector(0, 0, 1), 3.65), math.radians(0), math.radians(48)), False)
sketch4.addGeometry(Part.ArcOfCircle(Part.Circle(App.Vector(40, 0, 0), App.Vector(0, 0, 1), 3.65), math.radians(-48), math.radians(0)), False)
sketch4.addGeometry(Part.LineSegment(App.Vector(42.46, -2.7, 0), App.Vector(45.54, -2.7, 0)), False)
sketch4.addGeometry(Part.ArcOfCircle(Part.Circle(App.Vector(40, 0, 0), App.Vector(0, 0, 1), 3.65), math.radians(132), math.radians(228)), False)
sketch4.addGeometry(Part.LineSegment(App.Vector(37.54, 2.7, 0), App.Vector(34.46, 2.7, 0)), False)
sketch4.addGeometry(Part.ArcOfCircle(Part.Circle(App.Vector(32, 0, 0), App.Vector(0, 0, 1), 3.65), math.radians(0), math.radians(48)), False)
sketch4.addGeometry(Part.ArcOfCircle(Part.Circle(App.Vector(32, 0, 0), App.Vector(0, 0, 1), 3.65), math.radians(-48), math.radians(0)), False)
sketch4.addGeometry(Part.LineSegment(App.Vector(34.46, -2.7, 0), App.Vector(37.54, -2.7, 0)), False)
sketch4.addGeometry(Part.ArcOfCircle(Part.Circle(App.Vector(32, 0, 0), App.Vector(0, 0, 1), 3.65), math.radians(132), math.radians(228)), False)
sketch4.addGeometry(Part.LineSegment(App.Vector(29.54, 2.7, 0), App.Vector(26.46, 2.7, 0)), False)
sketch4.addGeometry(Part.ArcOfCircle(Part.Circle(App.Vector(24, 0, 0), App.Vector(0, 0, 1), 3.65), math.radians(0), math.radians(48)), False)
sketch4.addGeometry(Part.ArcOfCircle(Part.Circle(App.Vector(24, 0, 0), App.Vector(0, 0, 1), 3.65), math.radians(-48), math.radians(0)), False)
sketch4.addGeometry(Part.LineSegment(App.Vector(26.46, -2.7, 0), App.Vector(29.54, -2.7, 0)), False)
sketch4.addGeometry(Part.ArcOfCircle(Part.Circle(App.Vector(24, 0, 0), App.Vector(0, 0, 1), 3.65), math.radians(132), math.radians(228)), False)
sketch4.addGeometry(Part.LineSegment(App.Vector(21.54, 2.7, 0), App.Vector(18.46, 2.7, 0)), False)
sketch4.addGeometry(Part.ArcOfCircle(Part.Circle(App.Vector(16, 0, 0), App.Vector(0, 0, 1), 3.65), math.radians(0), math.radians(48)), False)
sketch4.addGeometry(Part.ArcOfCircle(Part.Circle(App.Vector(16, 0, 0), App.Vector(0, 0, 1), 3.65), math.radians(-48), math.radians(0)), False)
sketch4.addGeometry(Part.LineSegment(App.Vector(18.46, -2.7, 0), App.Vector(21.54, -2.7, 0)), False)
sketch4.addGeometry(Part.ArcOfCircle(Part.Circle(App.Vector(16, 0, 0), App.Vector(0, 0, 1), 3.65), math.radians(132), math.radians(228)), False)
sketch4.addGeometry(Part.LineSegment(App.Vector(13.54, 2.7, 0), App.Vector(10.46, 2.7, 0)), False)
sketch4.addGeometry(Part.ArcOfCircle(Part.Circle(App.Vector(8, 0, 0), App.Vector(0, 0, 1), 3.65), math.radians(0), math.radians(48)), False)
sketch4.addGeometry(Part.ArcOfCircle(Part.Circle(App.Vector(8, 0, 0), App.Vector(0, 0, 1), 3.65), math.radians(-48), math.radians(0)), False)
sketch4.addGeometry(Part.LineSegment(App.Vector(10.46, -2.7, 0), App.Vector(13.54, -2.7, 0)), False)
sketch4.addConstraint(Sketcher.Constraint("Coincident", 0, 2, 1, 2))
sketch4.addConstraint(Sketcher.Constraint("Coincident", 1, 1, 2, 1))
sketch4.addConstraint(Sketcher.Constraint("Coincident", 2, 2, 3, 2))
sketch4.addConstraint(Sketcher.Constraint("Coincident", 3, 1, 0, 1))
sketch4.addConstraint(Sketcher.Constraint("Coincident", 4, 2, 5, 2))
sketch4.addConstraint(Sketcher.Constraint("Coincident", 5, 1, 6, 1))
sketch4.addConstraint(Sketcher.Constraint("Coincident", 6, 2, 7, 2))
sketch4.addConstraint(Sketcher.Constraint("Coincident", 7, 1, 4, 1))
sketch4.addConstraint(Sketcher.Constraint("Coincident", 8, 1, 9, 1))
sketch4.addConstraint(Sketcher.Constraint("Coincident", 9, 2, 10, 2))
sketch4.addConstraint(Sketcher.Constraint("Tangent", 10, 1, 11, 2))
sketch4.addConstraint(Sketcher.Constraint("Coincident", 11, 1, 12, 1))
sketch4.addConstraint(Sketcher.Constraint("Coincident", 12, 2, 8, 2))
sketch4.addConstraint(Sketcher.Constraint("Coincident", 13, 1, 14, 1))
sketch4.addConstraint(Sketcher.Constraint("Coincident", 14, 2, 15, 2))
sketch4.addConstraint(Sketcher.Constraint("Tangent", 15, 1, 16, 2))
sketch4.addConstraint(Sketcher.Constraint("Coincident", 16, 1, 17, 1))
sketch4.addConstraint(Sketcher.Constraint("Coincident", 17, 2, 13, 2))
sketch4.addConstraint(Sketcher.Constraint("Coincident", 18, 1, 19, 1))
sketch4.addConstraint(Sketcher.Constraint("Coincident", 19, 2, 20, 2))
sketch4.addConstraint(Sketcher.Constraint("Tangent", 20, 1, 21, 2))
sketch4.addConstraint(Sketcher.Constraint("Coincident", 21, 1, 22, 1))
sketch4.addConstraint(Sketcher.Constraint("Coincident", 22, 2, 18, 2))
sketch4.addConstraint(Sketcher.Constraint("Coincident", 23, 1, 24, 1))
sketch4.addConstraint(Sketcher.Constraint("Coincident", 24, 2, 25, 2))
sketch4.addConstraint(Sketcher.Constraint("Tangent", 25, 1, 26, 2))
sketch4.addConstraint(Sketcher.Constraint("Coincident", 26, 1, 27, 1))
sketch4.addConstraint(Sketcher.Constraint("Coincident", 27, 2, 23, 2))
sketch4.addConstraint(Sketcher.Constraint("Coincident", 28, 1, 29, 1))
sketch4.addConstraint(Sketcher.Constraint("Coincident", 29, 2, 30, 2))
sketch4.addConstraint(Sketcher.Constraint("Tangent", 30, 1, 31, 2))
sketch4.addConstraint(Sketcher.Constraint("Coincident", 31, 1, 32, 1))
sketch4.addConstraint(Sketcher.Constraint("Coincident", 32, 2, 28, 2))
sketch4.addConstraint(Sketcher.Constraint("Coincident", 33, 1, 34, 1))
sketch4.addConstraint(Sketcher.Constraint("Coincident", 34, 2, 35, 2))
sketch4.addConstraint(Sketcher.Constraint("Tangent", 35, 1, 36, 2))
sketch4.addConstraint(Sketcher.Constraint("Coincident", 36, 1, 37, 1))
sketch4.addConstraint(Sketcher.Constraint("Coincident", 37, 2, 33, 2))
sketch4.addConstraint(Sketcher.Constraint("Vertical", 0))
sketch4.addConstraint(Sketcher.Constraint("Vertical", 2))
sketch4.addConstraint(Sketcher.Constraint("Horizontal", 14))
sketch4.addConstraint(Sketcher.Constraint("Horizontal", 17))
sketch4.addConstraint(Sketcher.Constraint("Horizontal", 19))
sketch4.addConstraint(Sketcher.Constraint("Horizontal", 22))
sketch4.addConstraint(Sketcher.Constraint("Horizontal", 24))
sketch4.addConstraint(Sketcher.Constraint("Horizontal", 27))
sketch4.addConstraint(Sketcher.Constraint("Horizontal", 29))
sketch4.addConstraint(Sketcher.Constraint("Horizontal", 32))
sketch4.addConstraint(Sketcher.Constraint("Horizontal", 34))
sketch4.addConstraint(Sketcher.Constraint("Horizontal", 37))
sketch4.addConstraint(Sketcher.Constraint("Coincident", 7, 3, 1, 3))
sketch4.addConstraint(Sketcher.Constraint("Coincident", 13, 3, 10, 3))
sketch4.addConstraint(Sketcher.Constraint("Coincident", 18, 3, 15, 3))
sketch4.addConstraint(Sketcher.Constraint("Coincident", 23, 3, 20, 3))
sketch4.addConstraint(Sketcher.Constraint("Coincident", 28, 3, 25, 3))
sketch4.addConstraint(Sketcher.Constraint("Coincident", 33, 3, 30, 3))
sketch4.addConstraint(Sketcher.Constraint("Equal", 1, 3))
sketch4.addConstraint(Sketcher.Constraint("Equal", 3, 5))
sketch4.addConstraint(Sketcher.Constraint("Equal", 5, 7))
sketch4.addConstraint(Sketcher.Constraint("Equal", 7, 8))
sketch4.addConstraint(Sketcher.Constraint("Equal", 8, 10))
sketch4.addConstraint(Sketcher.Constraint("Equal", 10, 11))
sketch4.addConstraint(Sketcher.Constraint("Equal", 11, 13))
sketch4.addConstraint(Sketcher.Constraint("Equal", 13, 15))
sketch4.addConstraint(Sketcher.Constraint("Equal", 15, 16))
sketch4.addConstraint(Sketcher.Constraint("Equal", 16, 18))
sketch4.addConstraint(Sketcher.Constraint("Equal", 18, 20))
sketch4.addConstraint(Sketcher.Constraint("Equal", 20, 21))
sketch4.addConstraint(Sketcher.Constraint("Equal", 21, 23))
sketch4.addConstraint(Sketcher.Constraint("Equal", 23, 25))
sketch4.addConstraint(Sketcher.Constraint("Equal", 25, 26))
sketch4.addConstraint(Sketcher.Constraint("Equal", 26, 28))
sketch4.addConstraint(Sketcher.Constraint("Equal", 28, 30))
sketch4.addConstraint(Sketcher.Constraint("Equal", 30, 31))
sketch4.addConstraint(Sketcher.Constraint("Equal", 31, 33))
sketch4.addConstraint(Sketcher.Constraint("Equal", 33, 35))
sketch4.addConstraint(Sketcher.Constraint("Equal", 35, 36))
sketch4.addConstraint(Sketcher.Constraint("Symmetric", 14, 2, 16, 1, -1))
sketch4.addConstraint(Sketcher.Constraint("Symmetric", 19, 2, 21, 1, -1))
sketch4.addConstraint(Sketcher.Constraint("Symmetric", 24, 2, 26, 1, -1))
sketch4.addConstraint(Sketcher.Constraint("Symmetric", 29, 2, 31, 1, -1))
sketch4.addConstraint(Sketcher.Constraint("Symmetric", 34, 2, 36, 1, -1))
sketch4.addConstraint(Sketcher.Constraint("PointOnObject", 10, 3, -1))
sketch4.addConstraint(Sketcher.Constraint("PointOnObject", 10, 1, -1))
sketch4.addConstraint(Sketcher.Constraint("PointOnObject", 15, 1, -1))
sketch4.addConstraint(Sketcher.Constraint("PointOnObject", 20, 1, -1))
sketch4.addConstraint(Sketcher.Constraint("PointOnObject", 25, 1, -1))
sketch4.addConstraint(Sketcher.Constraint("PointOnObject", 30, 1, -1))
sketch4.addConstraint(Sketcher.Constraint("PointOnObject", 35, 1, -1))
sketch4.addConstraint(Sketcher.Constraint("Parallel", 4, 6))
sketch4.addConstraint(Sketcher.Constraint("Parallel", 6, 9))
sketch4.addConstraint(Sketcher.Constraint("Parallel", 9, 12))
sketch4.addConstraint(Sketcher.Constraint("Horizontal", 0, 2, 1, 1))
sketch4.addConstraint(Sketcher.Constraint("Horizontal", 2, 2, 3, 1))
sketch4.addConstraint(Sketcher.Constraint("Horizontal", 14, 2, 18, 1))
sketch4.addConstraint(Sketcher.Constraint("Horizontal", 19, 2, 23, 1))
sketch4.addConstraint(Sketcher.Constraint("Horizontal", 24, 2, 28, 1))
sketch4.addConstraint(Sketcher.Constraint("Horizontal", 29, 2, 33, 1))
sketch4.addConstraint(Sketcher.Constraint("Equal", 17, 19))
sketch4.addConstraint(Sketcher.Constraint("Equal", 22, 24))
sketch4.addConstraint(Sketcher.Constraint("Equal", 27, 29))
sketch4.addConstraint(Sketcher.Constraint("Equal", 32, 34))
sketch4.addConstraint(Sketcher.Constraint("Equal", 37, 0))
sketch4.addConstraint(Sketcher.Constraint("Equal", 4, 6))
sketch4.addConstraint(Sketcher.Constraint("Equal", 6, 9))
sketch4.addConstraint(Sketcher.Constraint("Equal", 9, 12))
sketch4.addConstraint(Sketcher.Constraint("Angle", 4, Q("-135 deg")))
sketch4.addConstraint(Sketcher.Constraint("Radius", 1, Q("3.65 mm")))
sketch4.addConstraint(Sketcher.Constraint("DistanceX", -1, 1, 1, 3, Q("64 mm")))
sketch4.addConstraint(Sketcher.Constraint("DistanceY", -1, 1, 1, 3, Q("16 mm")))
sketch4.addConstraint(Sketcher.Constraint("DistanceY", -1, 1, 3, 3, Q("24 mm")))
sketch4.addConstraint(Sketcher.Constraint("DistanceX", -1, 1, 10, 3, Q("48 mm")))
sketch4.addConstraint(Sketcher.Constraint("DistanceX", -1, 1, 15, 3, Q("40 mm")))
sketch4.addConstraint(Sketcher.Constraint("DistanceX", -1, 1, 0, 2, Q("61.3 mm")))
sketch4.addConstraint(Sketcher.Constraint("Distance", 4, Q("3.08777 mm")))
sketch4.addConstraint(Sketcher.Constraint("DistanceY", -1, 1, 4, 2, Q("13.98907 mm")))
sketch4.addConstraint(Sketcher.Constraint("DistanceX", -1, 1, 5, 1, Q("61.98907 mm")))
sketch4.addConstraint(Sketcher.Constraint("DistanceX", -1, 1, 8, 1, Q("50.01093 mm")))
sketch4.addConstraint(Sketcher.Constraint("DistanceY", -1, 1, 12, 2, Q("2.01093 mm")))
pocket3 = body.newObject("PartDesign::Pocket", "Pocket002")
pocket3.Profile = sketch4
pocket3.Length = 3
doc.recompute()

fillet = body.newObject("PartDesign::Fillet", "Fillet")
fillet.Base = (pocket3, edges_at(pocket3, [
    (61.3, 21.544, 2.425),
    (66.7, 21.544, 2.425),
    (66.7, 18.456, 2.425),
    (61.3, 18.456, 2.425),
    (60.354, 16.172, 2.425),
    (64.172, 12.354, 2.425),
    (61.989, 10.171, 2.425),
    (58.171, 13.989, 2.425),
    (51.646, -0.172, 2.425),
    (47.828, 3.646, 2.425),
    (50.011, 5.829, 2.425),
    (53.829, 2.011, 2.425),
    (42.456, -2.7, 2.425),
    (42.456, 2.7, 2.425),
    (45.544, 2.7, 2.425),
    (45.544, -2.7, 2.425),
    (34.456, -2.7, 2.425),
    (34.456, 2.7, 2.425),
    (37.544, 2.7, 2.425),
    (37.544, -2.7, 2.425),
    (26.456, -2.7, 2.425),
    (26.456, 2.7, 2.425),
    (29.544, 2.7, 2.425),
    (29.544, -2.7, 2.425),
    (18.456, -2.7, 2.425),
    (18.456, 2.7, 2.425),
    (21.544, 2.7, 2.425),
    (21.544, -2.7, 2.425),
    (10.456, -2.7, 2.425),
    (10.456, 2.7, 2.425),
    (13.544, 2.7, 2.425),
    (13.544, -2.7, 2.425),
]))
fillet.Radius = 0.5
doc.recompute()

mirrored = body.newObject("PartDesign::Mirrored", "Mirrored")
mirrored.Originals = [pocket2, pocket3]
mirrored.MirrorPlane = (doc.getObject("XY_Plane"), [""])
body.Tip = mirrored
doc.recompute()

fillet2 = body.newObject("PartDesign::Fillet", "Fillet001")
fillet2.Base = (mirrored, edges_at(mirrored, [
    (61.3, 21.544, -2.425),
    (66.7, 21.544, -2.425),
    (66.7, 18.456, -2.425),
    (61.3, 18.456, -2.425),
    (60.354, 16.172, -2.425),
    (64.172, 12.354, -2.425),
    (61.989, 10.171, -2.425),
    (58.171, 13.989, -2.425),
    (51.646, -0.172, -2.425),
    (47.828, 3.646, -2.425),
    (50.011, 5.829, -2.425),
    (53.829, 2.011, -2.425),
    (42.456, -2.7, -2.425),
    (42.456, 2.7, -2.425),
    (45.544, 2.7, -2.425),
    (45.544, -2.7, -2.425),
    (34.456, -2.7, -2.425),
    (34.456, 2.7, -2.425),
    (37.544, 2.7, -2.425),
    (37.544, -2.7, -2.425),
    (26.456, -2.7, -2.425),
    (26.456, 2.7, -2.425),
    (29.544, 2.7, -2.425),
    (29.544, -2.7, -2.425),
    (18.456, -2.7, -2.425),
    (18.456, 2.7, -2.425),
    (21.544, 2.7, -2.425),
    (21.544, -2.7, -2.425),
    (10.456, -2.7, -2.425),
    (10.456, 2.7, -2.425),
    (13.544, 2.7, -2.425),
    (13.544, -2.7, -2.425),
]))
fillet2.Radius = 0.5
doc.recompute()

fillet3 = body.newObject("PartDesign::Fillet", "Fillet002")
fillet3.Base = (fillet2, edges_at(fillet2, [
    (2.53, 2.7, 0),
    (5.47, 2.7, 0),
    (5.47, -2.7, 0),
    (2.53, -2.7, 0),
    (66.7, 29.47, 0),
    (66.7, 26.53, 0),
    (61.3, 26.53, 0),
    (61.3, 29.47, 0),
]))
fillet3.Radius = 0.5

doc.recompute()
